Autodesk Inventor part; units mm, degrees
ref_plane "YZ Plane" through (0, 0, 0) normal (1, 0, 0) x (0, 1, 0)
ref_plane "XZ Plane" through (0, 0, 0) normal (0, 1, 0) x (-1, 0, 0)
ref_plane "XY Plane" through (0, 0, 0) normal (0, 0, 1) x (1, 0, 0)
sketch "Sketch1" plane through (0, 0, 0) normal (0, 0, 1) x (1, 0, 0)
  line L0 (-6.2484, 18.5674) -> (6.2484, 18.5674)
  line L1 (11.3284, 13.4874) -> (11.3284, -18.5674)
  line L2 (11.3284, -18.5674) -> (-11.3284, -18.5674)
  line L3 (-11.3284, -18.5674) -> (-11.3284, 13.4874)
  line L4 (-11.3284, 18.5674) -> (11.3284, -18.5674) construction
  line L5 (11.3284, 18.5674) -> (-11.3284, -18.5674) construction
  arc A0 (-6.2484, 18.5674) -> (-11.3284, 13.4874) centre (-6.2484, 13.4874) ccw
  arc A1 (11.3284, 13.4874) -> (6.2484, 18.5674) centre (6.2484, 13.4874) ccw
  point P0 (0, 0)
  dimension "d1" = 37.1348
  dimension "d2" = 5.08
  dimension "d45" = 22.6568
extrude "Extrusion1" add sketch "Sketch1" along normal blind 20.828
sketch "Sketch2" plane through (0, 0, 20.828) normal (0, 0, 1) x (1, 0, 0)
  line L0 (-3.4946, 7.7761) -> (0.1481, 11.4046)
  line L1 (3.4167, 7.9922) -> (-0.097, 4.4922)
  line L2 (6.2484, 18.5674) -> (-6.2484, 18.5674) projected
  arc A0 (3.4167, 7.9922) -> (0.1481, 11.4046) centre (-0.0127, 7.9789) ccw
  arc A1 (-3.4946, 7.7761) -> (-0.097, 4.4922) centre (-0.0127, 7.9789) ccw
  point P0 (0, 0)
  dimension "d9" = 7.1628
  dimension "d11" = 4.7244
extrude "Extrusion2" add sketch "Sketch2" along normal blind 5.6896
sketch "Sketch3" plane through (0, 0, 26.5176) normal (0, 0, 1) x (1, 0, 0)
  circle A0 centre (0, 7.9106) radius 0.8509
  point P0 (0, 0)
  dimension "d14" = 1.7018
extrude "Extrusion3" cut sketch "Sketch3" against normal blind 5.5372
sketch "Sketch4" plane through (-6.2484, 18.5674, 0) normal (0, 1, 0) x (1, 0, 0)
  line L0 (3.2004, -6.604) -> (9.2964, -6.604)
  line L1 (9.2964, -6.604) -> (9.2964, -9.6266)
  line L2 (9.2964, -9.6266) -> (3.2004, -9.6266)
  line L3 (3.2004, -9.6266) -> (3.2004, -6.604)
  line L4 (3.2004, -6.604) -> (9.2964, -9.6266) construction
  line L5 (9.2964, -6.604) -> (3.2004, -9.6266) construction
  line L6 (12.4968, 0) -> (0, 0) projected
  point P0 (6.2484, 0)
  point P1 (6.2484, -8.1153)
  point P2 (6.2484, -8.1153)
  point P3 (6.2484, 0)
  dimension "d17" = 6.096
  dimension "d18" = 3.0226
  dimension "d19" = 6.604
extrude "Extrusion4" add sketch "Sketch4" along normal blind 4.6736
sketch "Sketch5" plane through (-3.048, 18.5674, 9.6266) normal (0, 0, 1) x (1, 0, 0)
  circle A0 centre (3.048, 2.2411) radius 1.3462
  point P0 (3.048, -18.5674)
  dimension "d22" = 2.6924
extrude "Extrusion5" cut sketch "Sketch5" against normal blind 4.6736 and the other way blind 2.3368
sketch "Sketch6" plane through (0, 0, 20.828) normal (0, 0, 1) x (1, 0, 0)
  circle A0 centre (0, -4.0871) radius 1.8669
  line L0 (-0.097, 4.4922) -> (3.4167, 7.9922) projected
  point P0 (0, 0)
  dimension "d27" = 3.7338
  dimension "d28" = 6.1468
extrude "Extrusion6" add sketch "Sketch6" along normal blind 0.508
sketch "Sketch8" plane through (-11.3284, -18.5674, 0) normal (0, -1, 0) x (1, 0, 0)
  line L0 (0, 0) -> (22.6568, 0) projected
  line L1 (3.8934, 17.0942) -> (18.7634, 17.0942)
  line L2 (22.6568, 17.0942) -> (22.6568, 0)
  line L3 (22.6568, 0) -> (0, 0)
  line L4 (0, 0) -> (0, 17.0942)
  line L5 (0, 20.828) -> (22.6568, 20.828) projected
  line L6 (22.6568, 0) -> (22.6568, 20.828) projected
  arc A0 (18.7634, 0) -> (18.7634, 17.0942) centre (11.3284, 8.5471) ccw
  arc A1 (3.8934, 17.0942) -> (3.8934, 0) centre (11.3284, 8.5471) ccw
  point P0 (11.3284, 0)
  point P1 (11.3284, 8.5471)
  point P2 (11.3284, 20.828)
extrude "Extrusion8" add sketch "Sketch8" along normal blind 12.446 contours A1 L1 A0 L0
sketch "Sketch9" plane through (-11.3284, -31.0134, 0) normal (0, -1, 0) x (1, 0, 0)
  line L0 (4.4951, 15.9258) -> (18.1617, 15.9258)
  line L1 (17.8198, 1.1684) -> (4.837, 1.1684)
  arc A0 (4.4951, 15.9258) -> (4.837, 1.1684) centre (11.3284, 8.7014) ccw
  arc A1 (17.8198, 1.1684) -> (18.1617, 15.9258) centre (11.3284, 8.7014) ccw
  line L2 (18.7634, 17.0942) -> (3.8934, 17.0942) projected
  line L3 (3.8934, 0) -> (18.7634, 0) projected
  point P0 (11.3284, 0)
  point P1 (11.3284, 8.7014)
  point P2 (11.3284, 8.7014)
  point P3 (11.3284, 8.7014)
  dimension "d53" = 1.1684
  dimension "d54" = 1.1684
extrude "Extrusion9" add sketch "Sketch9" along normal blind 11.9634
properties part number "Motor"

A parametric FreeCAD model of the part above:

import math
import FreeCAD as App
import Part
import Sketcher
from FreeCAD import Vector
Q = App.Units.Quantity

doc = App.newDocument("Part")
params = doc.addObject("Spreadsheet::Sheet", "Params")
for row, (alias, value) in enumerate([
    ("sketch1_radius", "0.2 in"),
    ("sketch1_width", "0.892 in"),
    ("pad1_length", "0.82 in"),
    ("pad2_length", "0.224 in"),
    ("sketch3_diameter", "0.067 in"),
    ("pocket1_length", "0.218 in"),
    ("sketch4_width", "0.24 in"),
    ("sketch4_height", "0.119 in"),
    ("pad3_length", "0.184 in"),
    ("sketch5_diameter", "0.106 in"),
    ("sketch6_diameter", "0.147 in"),
    ("pad4_length", "0.02 in"),
    ("sketch7_radius", "0.446 in"),
    ("pad5_length", "0.49 in"),
    ("pad6_length", "0.471 in"),
], start=1):
    params.set(f"A{row}", alias)
    params.set(f"B{row}", "=" + value)
    params.setAlias(f"B{row}", alias)

body = doc.addObject("PartDesign::Body", "Body")

# Sketch on XY plane
sketch1 = body.newObject("Sketcher::SketchObject", "Sketch")
sketch1.AttachmentSupport = (doc.getObject("XY_Plane"), [""])
sketch1.MapMode = "FlatFace"
sketch1.addGeometry(Part.LineSegment(Vector(6, 19, 0), Vector(-6, 19, 0)), False)
sketch1.addGeometry(Part.ArcOfCircle(Part.Circle(Vector(-6, 13, 0), Vector(0, 0, 1), 5), math.radians(90), math.radians(180)), False)
sketch1.addGeometry(Part.LineSegment(Vector(-11, 13, 0), Vector(-11, -19, 0)), False)
sketch1.addGeometry(Part.LineSegment(Vector(-11, -19, 0), Vector(11, -19, 0)), False)
sketch1.addGeometry(Part.LineSegment(Vector(11, -19, 0), Vector(11, 13, 0)), False)
sketch1.addGeometry(Part.ArcOfCircle(Part.Circle(Vector(6, 13, 0), Vector(0, 0, 1), 5), math.radians(0), math.radians(90)), False)
sketch1.addConstraint(Sketcher.Constraint("Tangent", 0, 2, 1, 1))
sketch1.addConstraint(Sketcher.Constraint("Tangent", 1, 2, 2, 1))
sketch1.addConstraint(Sketcher.Constraint("Coincident", 2, 2, 3, 1))
sketch1.addConstraint(Sketcher.Constraint("Coincident", 3, 2, 4, 1))
sketch1.addConstraint(Sketcher.Constraint("Tangent", 4, 2, 5, 1))
sketch1.addConstraint(Sketcher.Constraint("Tangent", 5, 2, 0, 1))
sketch1.addConstraint(Sketcher.Constraint("Horizontal", 0))
sketch1.addConstraint(Sketcher.Constraint("Vertical", 2))
sketch1.addConstraint(Sketcher.Constraint("Horizontal", 3))
sketch1.addConstraint(Sketcher.Constraint("Vertical", 4))
sketch1.addConstraint(Sketcher.Constraint("Equal", 1, 5))
sketch1.addConstraint(Sketcher.Constraint("Radius", 1, Q("0.2 in")))
sketch1.addConstraint(Sketcher.Constraint("DistanceX", 3, 1, 3, 2, Q("0.892 in")))
sketch1.addConstraint(Sketcher.Constraint("DistanceY", 2, 2, 0, 2, Q("1.462 in")))
sketch1.addConstraint(Sketcher.Constraint("DistanceX", 1, 3, -1, 1, Q("0.246 in")))
sketch1.addConstraint(Sketcher.Constraint("DistanceY", -1, 1, 1, 3, Q("0.531 in")))
sketch1.setExpression("Constraints[11]", "Params.sketch1_radius")
sketch1.setExpression("Constraints[12]", "Params.sketch1_width")
pad1 = body.newObject("PartDesign::Pad", "Pad")
pad1.Profile = sketch1
pad1.setExpression("Length", "Params.pad1_length")

# Sketch on XY plane
sketch2 = body.newObject("Sketcher::SketchObject", "Sketch001")
sketch2.AttachmentSupport = (doc.getObject("XY_Plane"), [""])
sketch2.MapMode = "FlatFace"
sketch2.AttachmentOffset = App.Placement(Vector(0, 0, 0.82 * 25.4), App.Rotation())
sketch2.addGeometry(Part.LineSegment(Vector(0.1, 11.4, 0), Vector(-3.5, 7.8, 0)), False)
sketch2.addGeometry(Part.ArcOfCircle(Part.Circle(Vector(0, 8, 0), Vector(0, 0, 1), 3.5), math.radians(-177), math.radians(-91)), False)
sketch2.addGeometry(Part.LineSegment(Vector(-0.1, 4.5, 0), Vector(3.4, 8, 0)), False)
sketch2.addGeometry(Part.ArcOfCircle(Part.Circle(Vector(0, 8, 0), Vector(0, 0, 1), 3.4), math.radians(0), math.radians(87)), False)
sketch2.addConstraint(Sketcher.Constraint("Coincident", 0, 2, 1, 1))
sketch2.addConstraint(Sketcher.Constraint("Coincident", 1, 2, 2, 1))
sketch2.addConstraint(Sketcher.Constraint("Coincident", 2, 2, 3, 1))
sketch2.addConstraint(Sketcher.Constraint("Coincident", 3, 2, 0, 1))
sketch2.addConstraint(Sketcher.Constraint("Coincident", 3, 3, 1, 3))
sketch2.addConstraint(Sketcher.Constraint("Parallel", 0, 2))
sketch2.addConstraint(Sketcher.Constraint("Radius", 1, 3.4878))
sketch2.addConstraint(Sketcher.Constraint("Radius", 3, 3.4294))
sketch2.addConstraint(Sketcher.Constraint("DistanceY", -1, 1, 3, 2, Q("0.449 in")))
sketch2.addConstraint(Sketcher.Constraint("DistanceX", 1, 3, -1, 1, Q("0.0005 in")))
sketch2.addConstraint(Sketcher.Constraint("DistanceY", 1, 2, 0, 2, Q("0.1293 in")))
sketch2.addConstraint(Sketcher.Constraint("DistanceY", 1, 2, 2, 2, Q("0.1378 in")))
sketch2.addConstraint(Sketcher.Constraint("Distance", 0, 5.1415))
pad2 = body.newObject("PartDesign::Pad", "Pad001")
pad2.Profile = sketch2
pad2.setExpression("Length", "Params.pad2_length")

# Sketch on XY plane
sketch3 = body.newObject("Sketcher::SketchObject", "Sketch002")
sketch3.AttachmentSupport = (doc.getObject("XY_Plane"), [""])
sketch3.MapMode = "FlatFace"
sketch3.AttachmentOffset = App.Placement(Vector(0, 0, 1.044 * 25.4), App.Rotation())
sketch3.addGeometry(Part.Circle(Vector(0, 7.9, 0), Vector(0, 0, 1), 0.9), False)
sketch3.addConstraint(Sketcher.Constraint("PointOnObject", 0, 3, -2))
sketch3.addConstraint(Sketcher.Constraint("Diameter", 0, Q("0.067 in")))
sketch3.addConstraint(Sketcher.Constraint("DistanceY", -1, 1, 0, 3, 7.9106))
sketch3.setExpression("Constraints[1]", "Params.sketch3_diameter")
pocket1 = body.newObject("PartDesign::Pocket", "Pocket")
pocket1.Profile = sketch3
pocket1.setExpression("Length", "Params.pocket1_length")

# Sketch on XZ plane
sketch4 = body.newObject("Sketcher::SketchObject", "Sketch003")
sketch4.AttachmentSupport = (doc.getObject("XZ_Plane"), [""])
sketch4.MapMode = "FlatFace"
sketch4.AttachmentOffset = App.Placement(Vector(0, 0, -0.731 * 25.4), App.Rotation())
sketch4.addGeometry(Part.LineSegment(Vector(3, 6.6, 0), Vector(-3, 6.6, 0)), False)
sketch4.addGeometry(Part.LineSegment(Vector(-3, 6.6, 0), Vector(-3, 9.6, 0)), False)
sketch4.addGeometry(Part.LineSegment(Vector(-3, 9.6, 0), Vector(3, 9.6, 0)), False)
sketch4.addGeometry(Part.LineSegment(Vector(3, 9.6, 0), Vector(3, 6.6, 0)), False)
sketch4.addConstraint(Sketcher.Constraint("Coincident", 0, 2, 1, 1))
sketch4.addConstraint(Sketcher.Constraint("Coincident", 1, 2, 2, 1))
sketch4.addConstraint(Sketcher.Constraint("Coincident", 2, 2, 3, 1))
sketch4.addConstraint(Sketcher.Constraint("Coincident", 3, 2, 0, 1))
sketch4.addConstraint(Sketcher.Constraint("Horizontal", 0))
sketch4.addConstraint(Sketcher.Constraint("Vertical", 1))
sketch4.addConstraint(Sketcher.Constraint("Horizontal", 2))
sketch4.addConstraint(Sketcher.Constraint("Vertical", 3))
sketch4.addConstraint(Sketcher.Constraint("DistanceX", 0, 2, 0, 1, Q("0.24 in")))
sketch4.addConstraint(Sketcher.Constraint("DistanceY", 1, 1, 1, 2, Q("0.119 in")))
sketch4.addConstraint(Sketcher.Constraint("DistanceY", -1, 1, 0, 2, Q("0.26 in")))
sketch4.addConstraint(Sketcher.Constraint("DistanceX", 0, 2, -1, 1, Q("0.12 in")))
sketch4.setExpression("Constraints[8]", "Params.sketch4_width")
sketch4.setExpression("Constraints[9]", "Params.sketch4_height")
pad3 = body.newObject("PartDesign::Pad", "Pad002")
pad3.Profile = sketch4
pad3.setExpression("Length", "Params.pad3_length")
pad3.Reversed = True

# Sketch on XY plane
sketch5 = body.newObject("Sketcher::SketchObject", "Sketch004")
sketch5.AttachmentSupport = (doc.getObject("XY_Plane"), [""])
sketch5.MapMode = "FlatFace"
sketch5.AttachmentOffset = App.Placement(Vector(0, 0, 0.379 * 25.4), App.Rotation())
sketch5.addGeometry(Part.Circle(Vector(0, 20.8, 0), Vector(0, 0, 1), 1.3), False)
sketch5.addConstraint(Sketcher.Constraint("PointOnObject", 0, 3, -2))
sketch5.addConstraint(Sketcher.Constraint("Diameter", 0, Q("0.106 in")))
sketch5.addConstraint(Sketcher.Constraint("DistanceY", -1, 1, 0, 3, 20.8085))
sketch5.setExpression("Constraints[1]", "Params.sketch5_diameter")
pocket2 = body.newObject("PartDesign::Pocket", "Pocket001")
pocket2.Profile = sketch5
pocket2.Type = "ThroughAll"
pocket2.Midplane = True

# Sketch on XY plane
sketch6 = body.newObject("Sketcher::SketchObject", "Sketch005")
sketch6.AttachmentSupport = (doc.getObject("XY_Plane"), [""])
sketch6.MapMode = "FlatFace"
sketch6.AttachmentOffset = App.Placement(Vector(0, 0, 0.82 * 25.4), App.Rotation())
sketch6.addGeometry(Part.Circle(Vector(0, -4.1, 0), Vector(0, 0, 1), 1.9), False)
sketch6.addConstraint(Sketcher.Constraint("PointOnObject", 0, 3, -2))
sketch6.addConstraint(Sketcher.Constraint("Diameter", 0, Q("0.147 in")))
sketch6.addConstraint(Sketcher.Constraint("DistanceY", 0, 3, -1, 1, Q("0.1609 in")))
sketch6.setExpression("Constraints[1]", "Params.sketch6_diameter")
pad4 = body.newObject("PartDesign::Pad", "Pad003")
pad4.Profile = sketch6
pad4.setExpression("Length", "Params.pad4_length")

# Sketch on XZ plane
sketch7 = body.newObject("Sketcher::SketchObject", "Sketch006")
sketch7.AttachmentSupport = (doc.getObject("XZ_Plane"), [""])
sketch7.MapMode = "FlatFace"
sketch7.AttachmentOffset = App.Placement(Vector(0, 0, 0.731 * 25.4), App.Rotation())
sketch7.addGeometry(Part.ArcOfCircle(Part.Circle(Vector(0, 9, 0), Vector(0, 0, 1), 11), math.radians(131), math.radians(229)), False)
sketch7.addGeometry(Part.LineSegment(Vector(-7, 0, 0), Vector(7, 0, 0)), False)
sketch7.addGeometry(Part.ArcOfCircle(Part.Circle(Vector(0, 9, 0), Vector(0, 0, 1), 11), math.radians(-49), math.radians(49)), False)
sketch7.addGeometry(Part.LineSegment(Vector(7, 17, 0), Vector(-7, 17, 0)), False)
sketch7.addConstraint(Sketcher.Constraint("Coincident", 0, 2, 1, 1))
sketch7.addConstraint(Sketcher.Constraint("Coincident", 1, 2, 2, 1))
sketch7.addConstraint(Sketcher.Constraint("Coincident", 2, 2, 3, 1))
sketch7.addConstraint(Sketcher.Constraint("Coincident", 3, 2, 0, 1))
sketch7.addConstraint(Sketcher.Constraint("Horizontal", 1))
sketch7.addConstraint(Sketcher.Constraint("Horizontal", 3))
sketch7.addConstraint(Sketcher.Constraint("Coincident", 2, 3, 0, 3))
sketch7.addConstraint(Sketcher.Constraint("Equal", 0, 2))
sketch7.addConstraint(Sketcher.Constraint("Symmetric", 0, 2, 1, 2, -1, 1))
sketch7.addConstraint(Sketcher.Constraint("Vertical", 1, 2, 2, 2))
sketch7.addConstraint(Sketcher.Constraint("Radius", 0, Q("0.446 in")))
sketch7.addConstraint(Sketcher.Constraint("DistanceY", -1, 1, 2, 2, Q("0.673 in")))
sketch7.setExpression("Constraints[10]", "Params.sketch7_radius")
pad5 = body.newObject("PartDesign::Pad", "Pad004")
pad5.Profile = sketch7
pad5.setExpression("Length", "Params.pad5_length")

# Sketch on XZ plane
sketch8 = body.newObject("Sketcher::SketchObject", "Sketch007")
sketch8.AttachmentSupport = (doc.getObject("XZ_Plane"), [""])
sketch8.MapMode = "FlatFace"
sketch8.AttachmentOffset = App.Placement(Vector(0, 0, 1.221 * 25.4), App.Rotation())
sketch8.addGeometry(Part.LineSegment(Vector(7, 16, 0), Vector(-7, 16, 0)), False)
sketch8.addGeometry(Part.ArcOfCircle(Part.Circle(Vector(0, 9, 0), Vector(0, 0, 1), 10), math.radians(133), math.radians(229)), False)
sketch8.addGeometry(Part.LineSegment(Vector(-6, 1, 0), Vector(6, 1, 0)), False)
sketch8.addGeometry(Part.ArcOfCircle(Part.Circle(Vector(0, 9, 0), Vector(0, 0, 1), 10), math.radians(-49), math.radians(47)), False)
sketch8.addConstraint(Sketcher.Constraint("Coincident", 0, 2, 1, 1))
sketch8.addConstraint(Sketcher.Constraint("Coincident", 1, 2, 2, 1))
sketch8.addConstraint(Sketcher.Constraint("Coincident", 2, 2, 3, 1))
sketch8.addConstraint(Sketcher.Constraint("Coincident", 3, 2, 0, 1))
sketch8.addConstraint(Sketcher.Constraint("Horizontal", 0))
sketch8.addConstraint(Sketcher.Constraint("Horizontal", 2))
sketch8.addConstraint(Sketcher.Constraint("Coincident", 3, 3, 1, 3))
sketch8.addConstraint(Sketcher.Constraint("Equal", 1, 3))
sketch8.addConstraint(Sketcher.Constraint("PointOnObject", 1, 3, -2))
sketch8.addConstraint(Sketcher.Constraint("DistanceY", -1, 1, 1, 2, Q("0.046 in")))
sketch8.addConstraint(Sketcher.Constraint("Radius", 1, Q("0.3915 in")))
sketch8.addConstraint(Sketcher.Constraint("DistanceY", -1, 1, 0, 2, Q("0.627 in")))
sketch8.addConstraint(Sketcher.Constraint("DistanceX", 0, 2, 0, 1, 13.6666))
pad6 = body.newObject("PartDesign::Pad", "Pad005")
pad6.Profile = sketch8
pad6.setExpression("Length", "Params.pad6_length")

doc.recompute()
